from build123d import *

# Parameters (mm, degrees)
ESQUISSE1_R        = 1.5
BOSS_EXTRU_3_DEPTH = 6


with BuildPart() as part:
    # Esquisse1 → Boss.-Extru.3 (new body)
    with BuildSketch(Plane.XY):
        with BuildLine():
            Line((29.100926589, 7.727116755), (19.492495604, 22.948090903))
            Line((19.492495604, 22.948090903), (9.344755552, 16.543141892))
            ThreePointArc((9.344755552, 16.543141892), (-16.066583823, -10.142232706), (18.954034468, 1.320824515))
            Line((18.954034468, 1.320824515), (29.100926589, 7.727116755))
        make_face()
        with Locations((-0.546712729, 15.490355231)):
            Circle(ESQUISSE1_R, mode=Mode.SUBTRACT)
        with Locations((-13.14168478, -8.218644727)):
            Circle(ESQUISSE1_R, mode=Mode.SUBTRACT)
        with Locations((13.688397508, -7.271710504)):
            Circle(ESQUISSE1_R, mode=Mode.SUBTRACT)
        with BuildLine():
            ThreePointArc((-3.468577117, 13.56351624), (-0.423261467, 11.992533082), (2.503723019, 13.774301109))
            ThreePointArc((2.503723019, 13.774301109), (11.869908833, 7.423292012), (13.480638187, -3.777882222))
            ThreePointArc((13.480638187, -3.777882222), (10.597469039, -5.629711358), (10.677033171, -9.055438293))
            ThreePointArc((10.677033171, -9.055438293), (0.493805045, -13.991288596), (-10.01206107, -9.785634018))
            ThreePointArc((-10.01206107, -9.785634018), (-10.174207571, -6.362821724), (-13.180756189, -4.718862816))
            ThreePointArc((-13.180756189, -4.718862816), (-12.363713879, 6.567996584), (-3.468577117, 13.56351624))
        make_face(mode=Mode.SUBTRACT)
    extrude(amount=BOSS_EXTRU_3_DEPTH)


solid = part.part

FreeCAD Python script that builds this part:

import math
import FreeCAD as App
import Part
import Sketcher

doc = App.newDocument("Part")
params = doc.addObject("Spreadsheet::Sheet", "Params")
for row, (alias, value) in enumerate([
    ("sketch1_diameter", "3 mm"),
    ("sketch1_radius", "19 mm"),
    ("sketch1_radius2", "14 mm"),
    ("sketch1_radius3", "3.5 mm"),
    ("sketch1_length", "18 mm"),
    ("pad1_length", "6 mm"),
], start=1):
    params.set(f"A{row}", alias)
    params.set(f"B{row}", "=" + value)
    params.setAlias(f"B{row}", alias)

body = doc.addObject("PartDesign::Body", "Body")

sketch1 = doc.addObject("Sketcher::SketchObject", "Sketch")
body.addObject(sketch1)
sketch1.AttachmentSupport = (doc.XY_Plane, [""])
sketch1.MapMode = "FlatFace"
sketch1.addGeometry([
    Part.LineSegment(App.Vector(29.1, 7.7, 0), App.Vector(19.5, 22.9, 0)),
    Part.LineSegment(App.Vector(19.5, 22.9, 0), App.Vector(9.3, 16.5, 0)),
    Part.ArcOfCircle(Part.Circle(App.Vector(0, 0, 0), App.Vector(0, 0, 1), 19), math.radians(61), math.radians(364)),
    Part.LineSegment(App.Vector(19, 1.3, 0), App.Vector(29.1, 7.7, 0)),
    Part.Circle(App.Vector(-13.1, -8.2, 0), App.Vector(0, 0, 1), 1.5),
    Part.ArcOfCircle(Part.Circle(App.Vector(0, 0, 0), App.Vector(0, 0, 1), 14), math.radians(104), math.radians(200)),
    Part.ArcOfCircle(Part.Circle(App.Vector(-0.5, 15.5, 0), App.Vector(0, 0, 1), 3.5), math.radians(-147), math.radians(-29)),
    Part.ArcOfCircle(Part.Circle(App.Vector(0, 0, 0), App.Vector(0, 0, 1), 14), math.radians(-16), math.radians(80)),
    Part.ArcOfCircle(Part.Circle(App.Vector(13.7, -7.3, 0), App.Vector(0, 0, 1), 3.5), math.radians(93), math.radians(211)),
    Part.ArcOfCircle(Part.Circle(App.Vector(0, 0, 0), App.Vector(0, 0, 1), 14), math.radians(-136), math.radians(-40)),
    Part.ArcOfCircle(Part.Circle(App.Vector(-13.1, -8.2, 0), App.Vector(0, 0, 1), 3.5), math.radians(-27), math.radians(91)),
    Part.Circle(App.Vector(13.7, -7.3, 0), App.Vector(0, 0, 1), 1.5),
    Part.Circle(App.Vector(-0.5, 15.5, 0), App.Vector(0, 0, 1), 1.5),
], False)
sketch1.addConstraint([
    Sketcher.Constraint("Coincident", 0, 2, 1, 1),
    Sketcher.Constraint("Coincident", 1, 2, 2, 1),
    Sketcher.Constraint("Coincident", 2, 2, 3, 1),
    Sketcher.Constraint("Coincident", 3, 2, 0, 1),
    Sketcher.Constraint("Coincident", 5, 1, 6, 1),
    Sketcher.Constraint("Coincident", 6, 2, 7, 2),
    Sketcher.Constraint("Coincident", 7, 1, 8, 1),
    Sketcher.Constraint("Coincident", 8, 2, 9, 2),
    Sketcher.Constraint("Coincident", 9, 1, 10, 1),
    Sketcher.Constraint("Coincident", 10, 2, 5, 2),
    Sketcher.Constraint("Coincident", 2, 3, -1, 1),
    Sketcher.Constraint("Coincident", 5, 3, -1, 1),
    Sketcher.Constraint("Coincident", 7, 3, -1, 1),
    Sketcher.Constraint("Coincident", 9, 3, -1, 1),
    Sketcher.Constraint("Coincident", 10, 3, 4, 3),
    Sketcher.Constraint("Coincident", 11, 3, 8, 3),
    Sketcher.Constraint("Coincident", 12, 3, 6, 3),
    Sketcher.Constraint("Equal", 5, 7),
    Sketcher.Constraint("Equal", 6, 8),
    Sketcher.Constraint("Equal", 7, 9),
    Sketcher.Constraint("Equal", 8, 10),
    Sketcher.Constraint("Equal", 4, 11),
    Sketcher.Constraint("Equal", 11, 12),
    Sketcher.Constraint("Equal", 1, 3),
    Sketcher.Constraint("Diameter", 4, 3.0),
    Sketcher.Constraint("Radius", 2, 19.0),
    Sketcher.Constraint("Radius", 5, 14.0),
    Sketcher.Constraint("Radius", 6, 3.5),
    Sketcher.Constraint("Distance", 0, 18.0),
    Sketcher.Constraint("Distance", 1, 12.0),
    Sketcher.Constraint("DistanceY", 4, 3, 6, 3, 23.709),
    Sketcher.Constraint("DistanceX", 8, 2, 2, 2, 8.277001),
    Sketcher.Constraint("DistanceY", -1, 1, 6, 2, 13.774301),
    Sketcher.Constraint("DistanceX", 5, 1, 6, 2, 5.9723),
    Sketcher.Constraint("DistanceY", 8, 3, -1, 1, 7.271711),
    Sketcher.Constraint("DistanceY", -1, 1, 0, 2, 22.948091),
    Sketcher.Constraint("DistanceY", -1, 1, 1, 2, 16.543142),
    Sketcher.Constraint("DistanceY", 8, 2, -1, 1, 9.055438),
    Sketcher.Constraint("DistanceX", 9, 1, -1, 1, 10.012061),
])
sketch1.setExpression("Constraints[24]", "Params.sketch1_diameter")
sketch1.setExpression("Constraints[25]", "Params.sketch1_radius")
sketch1.setExpression("Constraints[26]", "Params.sketch1_radius2")
sketch1.setExpression("Constraints[27]", "Params.sketch1_radius3")
sketch1.setExpression("Constraints[28]", "Params.sketch1_length")
pad1 = doc.addObject("PartDesign::Pad", "Pad")
body.addObject(pad1)
pad1.Profile = sketch1
pad1.setExpression("Length", "Params.pad1_length")

doc.recompute()
